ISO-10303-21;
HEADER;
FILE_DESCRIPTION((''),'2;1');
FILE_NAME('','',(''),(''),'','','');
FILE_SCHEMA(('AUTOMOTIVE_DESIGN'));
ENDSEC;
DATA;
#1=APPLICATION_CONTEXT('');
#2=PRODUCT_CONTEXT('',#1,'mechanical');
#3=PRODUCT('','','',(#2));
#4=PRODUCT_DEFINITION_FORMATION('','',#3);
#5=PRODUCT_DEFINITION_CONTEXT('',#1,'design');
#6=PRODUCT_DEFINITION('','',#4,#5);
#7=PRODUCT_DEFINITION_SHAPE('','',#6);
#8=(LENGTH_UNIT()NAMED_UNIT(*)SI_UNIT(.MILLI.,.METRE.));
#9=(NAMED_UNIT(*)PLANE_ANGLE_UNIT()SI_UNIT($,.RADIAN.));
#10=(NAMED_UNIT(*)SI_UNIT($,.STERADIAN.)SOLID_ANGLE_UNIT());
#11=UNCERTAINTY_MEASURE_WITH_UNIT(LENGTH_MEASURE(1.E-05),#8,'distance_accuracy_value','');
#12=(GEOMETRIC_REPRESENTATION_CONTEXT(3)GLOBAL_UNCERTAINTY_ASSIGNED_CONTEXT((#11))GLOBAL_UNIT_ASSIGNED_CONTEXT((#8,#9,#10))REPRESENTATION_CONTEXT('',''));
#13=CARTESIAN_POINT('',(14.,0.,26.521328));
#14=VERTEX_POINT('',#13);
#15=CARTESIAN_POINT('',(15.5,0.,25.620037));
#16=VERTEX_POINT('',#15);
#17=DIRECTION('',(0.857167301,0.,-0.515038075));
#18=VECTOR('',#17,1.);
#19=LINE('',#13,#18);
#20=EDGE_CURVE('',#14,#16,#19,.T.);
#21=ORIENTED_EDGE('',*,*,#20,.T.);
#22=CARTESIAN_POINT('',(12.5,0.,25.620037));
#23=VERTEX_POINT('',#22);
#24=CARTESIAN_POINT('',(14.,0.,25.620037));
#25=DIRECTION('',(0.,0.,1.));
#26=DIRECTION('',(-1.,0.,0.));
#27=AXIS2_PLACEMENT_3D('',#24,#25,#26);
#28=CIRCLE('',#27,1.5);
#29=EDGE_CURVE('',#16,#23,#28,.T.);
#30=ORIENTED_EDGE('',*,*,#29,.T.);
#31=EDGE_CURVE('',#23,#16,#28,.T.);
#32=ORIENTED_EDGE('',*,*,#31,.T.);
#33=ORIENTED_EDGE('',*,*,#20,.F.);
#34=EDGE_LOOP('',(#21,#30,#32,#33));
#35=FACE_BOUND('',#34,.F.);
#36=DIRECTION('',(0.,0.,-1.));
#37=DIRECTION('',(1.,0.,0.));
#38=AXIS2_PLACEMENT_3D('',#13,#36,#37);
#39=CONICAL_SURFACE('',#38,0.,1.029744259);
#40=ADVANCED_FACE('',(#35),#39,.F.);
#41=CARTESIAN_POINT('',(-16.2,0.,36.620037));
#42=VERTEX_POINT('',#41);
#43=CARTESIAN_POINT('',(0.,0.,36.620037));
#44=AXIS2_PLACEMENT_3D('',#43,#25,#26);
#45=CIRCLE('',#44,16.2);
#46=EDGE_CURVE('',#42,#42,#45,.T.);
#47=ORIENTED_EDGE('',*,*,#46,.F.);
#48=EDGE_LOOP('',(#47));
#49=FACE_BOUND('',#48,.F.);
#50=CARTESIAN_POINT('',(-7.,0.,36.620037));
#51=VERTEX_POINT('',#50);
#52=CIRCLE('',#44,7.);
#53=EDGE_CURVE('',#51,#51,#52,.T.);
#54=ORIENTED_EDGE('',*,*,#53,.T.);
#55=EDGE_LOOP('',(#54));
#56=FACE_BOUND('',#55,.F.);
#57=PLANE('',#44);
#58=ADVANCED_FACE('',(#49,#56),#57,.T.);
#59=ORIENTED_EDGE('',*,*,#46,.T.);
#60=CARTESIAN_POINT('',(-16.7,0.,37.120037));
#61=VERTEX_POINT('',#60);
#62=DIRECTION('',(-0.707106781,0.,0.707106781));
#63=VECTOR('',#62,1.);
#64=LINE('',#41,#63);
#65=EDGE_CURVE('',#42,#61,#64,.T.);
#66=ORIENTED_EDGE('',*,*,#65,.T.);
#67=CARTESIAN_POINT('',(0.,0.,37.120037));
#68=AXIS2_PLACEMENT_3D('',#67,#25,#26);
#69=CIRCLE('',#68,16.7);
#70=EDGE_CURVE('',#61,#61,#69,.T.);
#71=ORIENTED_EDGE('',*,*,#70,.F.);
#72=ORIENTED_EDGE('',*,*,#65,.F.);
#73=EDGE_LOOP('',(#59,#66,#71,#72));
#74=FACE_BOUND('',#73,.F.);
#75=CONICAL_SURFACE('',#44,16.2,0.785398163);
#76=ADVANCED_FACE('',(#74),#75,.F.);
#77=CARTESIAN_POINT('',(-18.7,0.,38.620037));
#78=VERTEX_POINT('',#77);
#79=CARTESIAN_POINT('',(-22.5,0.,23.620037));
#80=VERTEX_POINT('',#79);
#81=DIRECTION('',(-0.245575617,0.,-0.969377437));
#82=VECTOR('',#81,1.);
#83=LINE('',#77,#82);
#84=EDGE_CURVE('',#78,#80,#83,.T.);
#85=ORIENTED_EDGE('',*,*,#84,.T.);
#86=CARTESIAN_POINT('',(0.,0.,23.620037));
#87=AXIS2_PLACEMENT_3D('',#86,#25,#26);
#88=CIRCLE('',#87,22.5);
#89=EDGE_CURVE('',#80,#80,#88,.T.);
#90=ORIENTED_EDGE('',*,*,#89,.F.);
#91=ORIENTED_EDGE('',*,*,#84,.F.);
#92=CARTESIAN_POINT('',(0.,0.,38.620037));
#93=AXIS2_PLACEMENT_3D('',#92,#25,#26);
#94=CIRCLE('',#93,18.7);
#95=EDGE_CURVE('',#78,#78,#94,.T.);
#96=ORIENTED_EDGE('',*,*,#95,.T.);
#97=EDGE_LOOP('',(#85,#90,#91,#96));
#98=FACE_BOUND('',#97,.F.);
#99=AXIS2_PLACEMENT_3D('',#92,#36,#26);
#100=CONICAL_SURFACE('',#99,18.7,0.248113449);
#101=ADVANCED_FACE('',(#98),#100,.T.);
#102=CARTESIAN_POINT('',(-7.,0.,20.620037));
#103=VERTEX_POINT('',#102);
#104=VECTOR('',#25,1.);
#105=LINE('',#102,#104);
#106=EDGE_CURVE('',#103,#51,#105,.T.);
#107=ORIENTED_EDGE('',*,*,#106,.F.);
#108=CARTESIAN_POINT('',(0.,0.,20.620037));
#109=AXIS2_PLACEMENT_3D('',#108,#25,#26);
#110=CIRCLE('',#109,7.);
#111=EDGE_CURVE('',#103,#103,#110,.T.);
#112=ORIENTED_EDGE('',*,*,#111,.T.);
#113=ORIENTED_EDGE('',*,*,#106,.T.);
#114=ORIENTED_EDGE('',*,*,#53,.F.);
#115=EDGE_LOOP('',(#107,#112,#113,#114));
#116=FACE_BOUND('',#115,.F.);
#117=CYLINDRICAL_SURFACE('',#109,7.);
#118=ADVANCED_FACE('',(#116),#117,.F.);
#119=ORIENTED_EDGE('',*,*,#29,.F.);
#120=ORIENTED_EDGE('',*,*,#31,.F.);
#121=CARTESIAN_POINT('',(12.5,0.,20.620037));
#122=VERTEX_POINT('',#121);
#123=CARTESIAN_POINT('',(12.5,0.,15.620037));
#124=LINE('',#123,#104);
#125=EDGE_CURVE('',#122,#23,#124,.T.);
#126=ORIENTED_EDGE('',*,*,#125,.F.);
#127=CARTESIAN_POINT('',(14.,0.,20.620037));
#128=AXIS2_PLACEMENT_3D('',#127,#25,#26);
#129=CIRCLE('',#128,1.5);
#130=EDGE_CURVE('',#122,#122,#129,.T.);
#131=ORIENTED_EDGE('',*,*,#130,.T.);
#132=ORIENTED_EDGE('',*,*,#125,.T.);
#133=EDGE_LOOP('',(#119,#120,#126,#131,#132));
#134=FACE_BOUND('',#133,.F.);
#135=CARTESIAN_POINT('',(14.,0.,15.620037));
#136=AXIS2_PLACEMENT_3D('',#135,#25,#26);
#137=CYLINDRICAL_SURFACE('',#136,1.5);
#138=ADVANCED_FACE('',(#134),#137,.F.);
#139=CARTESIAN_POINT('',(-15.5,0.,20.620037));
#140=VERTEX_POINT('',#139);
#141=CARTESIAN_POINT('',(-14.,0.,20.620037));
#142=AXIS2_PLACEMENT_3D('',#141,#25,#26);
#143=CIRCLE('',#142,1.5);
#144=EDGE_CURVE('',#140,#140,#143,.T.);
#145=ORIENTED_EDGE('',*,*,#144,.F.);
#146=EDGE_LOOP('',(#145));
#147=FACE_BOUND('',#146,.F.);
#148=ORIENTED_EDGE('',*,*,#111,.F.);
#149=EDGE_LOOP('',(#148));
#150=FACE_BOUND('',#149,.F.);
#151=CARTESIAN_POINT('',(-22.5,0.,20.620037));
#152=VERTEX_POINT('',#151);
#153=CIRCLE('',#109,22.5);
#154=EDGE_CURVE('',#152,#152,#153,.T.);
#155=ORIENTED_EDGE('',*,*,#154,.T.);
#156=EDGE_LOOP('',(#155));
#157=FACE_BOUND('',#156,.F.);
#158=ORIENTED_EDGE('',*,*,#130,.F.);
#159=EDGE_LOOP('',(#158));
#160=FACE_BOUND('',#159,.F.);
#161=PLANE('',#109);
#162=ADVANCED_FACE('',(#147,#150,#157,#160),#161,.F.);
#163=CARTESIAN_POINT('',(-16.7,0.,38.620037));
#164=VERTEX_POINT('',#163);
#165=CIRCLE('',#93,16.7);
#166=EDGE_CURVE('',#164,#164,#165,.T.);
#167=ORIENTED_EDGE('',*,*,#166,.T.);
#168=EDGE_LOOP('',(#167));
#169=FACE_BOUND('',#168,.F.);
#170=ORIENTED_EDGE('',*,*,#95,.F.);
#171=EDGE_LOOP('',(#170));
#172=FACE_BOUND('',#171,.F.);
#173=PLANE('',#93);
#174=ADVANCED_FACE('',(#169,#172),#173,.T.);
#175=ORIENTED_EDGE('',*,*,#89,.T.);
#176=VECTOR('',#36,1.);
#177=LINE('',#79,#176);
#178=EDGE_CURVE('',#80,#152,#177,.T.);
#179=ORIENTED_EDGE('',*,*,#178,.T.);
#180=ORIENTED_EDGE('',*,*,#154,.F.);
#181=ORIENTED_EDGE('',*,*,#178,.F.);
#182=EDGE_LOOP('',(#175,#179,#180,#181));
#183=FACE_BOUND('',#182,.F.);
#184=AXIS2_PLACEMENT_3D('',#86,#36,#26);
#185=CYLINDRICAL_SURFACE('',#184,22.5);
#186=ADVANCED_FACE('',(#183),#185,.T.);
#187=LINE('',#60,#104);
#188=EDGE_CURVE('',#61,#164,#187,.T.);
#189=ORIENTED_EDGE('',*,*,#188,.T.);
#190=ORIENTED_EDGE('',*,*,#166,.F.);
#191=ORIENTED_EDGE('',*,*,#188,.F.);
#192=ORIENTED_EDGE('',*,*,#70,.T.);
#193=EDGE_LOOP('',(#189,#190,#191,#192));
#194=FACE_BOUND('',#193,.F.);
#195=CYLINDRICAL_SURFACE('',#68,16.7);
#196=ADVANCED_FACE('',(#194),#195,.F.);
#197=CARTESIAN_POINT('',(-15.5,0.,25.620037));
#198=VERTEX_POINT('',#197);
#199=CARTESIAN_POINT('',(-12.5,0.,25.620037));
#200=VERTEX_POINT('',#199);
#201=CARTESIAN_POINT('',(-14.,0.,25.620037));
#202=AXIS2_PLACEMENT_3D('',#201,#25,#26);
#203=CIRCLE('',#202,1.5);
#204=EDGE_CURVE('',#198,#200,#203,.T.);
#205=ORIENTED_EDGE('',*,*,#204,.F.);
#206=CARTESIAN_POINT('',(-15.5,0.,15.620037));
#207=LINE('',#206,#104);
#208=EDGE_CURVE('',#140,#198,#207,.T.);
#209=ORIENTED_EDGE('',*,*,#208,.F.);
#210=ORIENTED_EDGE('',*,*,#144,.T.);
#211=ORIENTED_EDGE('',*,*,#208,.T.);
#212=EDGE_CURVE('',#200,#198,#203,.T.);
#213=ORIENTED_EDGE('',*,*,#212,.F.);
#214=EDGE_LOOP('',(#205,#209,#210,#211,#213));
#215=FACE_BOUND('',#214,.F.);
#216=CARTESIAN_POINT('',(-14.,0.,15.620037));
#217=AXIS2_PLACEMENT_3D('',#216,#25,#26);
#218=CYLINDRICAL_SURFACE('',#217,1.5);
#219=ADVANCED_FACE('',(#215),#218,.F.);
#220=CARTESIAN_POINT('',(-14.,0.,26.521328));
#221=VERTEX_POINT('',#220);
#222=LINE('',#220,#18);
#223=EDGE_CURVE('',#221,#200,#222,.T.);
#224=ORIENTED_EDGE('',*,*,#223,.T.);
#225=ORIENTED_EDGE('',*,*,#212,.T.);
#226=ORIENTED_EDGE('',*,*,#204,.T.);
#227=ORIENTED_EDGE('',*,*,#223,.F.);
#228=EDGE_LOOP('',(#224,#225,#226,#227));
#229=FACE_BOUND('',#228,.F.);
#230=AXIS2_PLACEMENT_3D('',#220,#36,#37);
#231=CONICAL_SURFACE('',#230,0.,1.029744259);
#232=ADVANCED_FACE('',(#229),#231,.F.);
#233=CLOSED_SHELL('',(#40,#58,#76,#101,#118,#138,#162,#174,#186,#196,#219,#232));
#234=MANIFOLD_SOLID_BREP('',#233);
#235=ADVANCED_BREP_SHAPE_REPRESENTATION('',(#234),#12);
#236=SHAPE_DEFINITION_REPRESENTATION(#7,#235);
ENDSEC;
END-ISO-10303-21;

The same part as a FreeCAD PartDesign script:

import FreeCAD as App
import Part
import Sketcher
Q = App.Units.Quantity

doc = App.newDocument("Part")
body = doc.addObject("PartDesign::Body", "Body")

sketch1 = body.newObject("Sketcher::SketchObject", "Sketch")
sketch1.AttachmentSupport = (doc.getObject("XZ_Plane"), [""])
sketch1.MapMode = "FlatFace"
sketch1.addGeometry([
    Part.LineSegment(App.Vector(-22.5, 20.620037, 0), App.Vector(-7, 20.620037, 0)),
    Part.LineSegment(App.Vector(-7, 20.620037, 0), App.Vector(-7, 36.620037, 0)),
    Part.LineSegment(App.Vector(-7, 36.620037, 0), App.Vector(-16.2, 36.620037, 0)),
    Part.LineSegment(App.Vector(-16.2, 36.620037, 0), App.Vector(-16.7, 37.120037, 0)),
    Part.LineSegment(App.Vector(-16.7, 37.120037, 0), App.Vector(-16.7, 38.620037, 0)),
    Part.LineSegment(App.Vector(-16.7, 38.620037, 0), App.Vector(-18.7, 38.620037, 0)),
    Part.LineSegment(App.Vector(-18.7, 38.620037, 0), App.Vector(-22.5, 23.620037, 0)),
    Part.LineSegment(App.Vector(-22.5, 23.620037, 0), App.Vector(-22.5, 20.620037, 0)),
], False)
sketch1.addConstraint([
    Sketcher.Constraint("Coincident", 0, 2, 1, 1),
    Sketcher.Constraint("Coincident", 1, 2, 2, 1),
    Sketcher.Constraint("Coincident", 2, 2, 3, 1),
    Sketcher.Constraint("Coincident", 3, 2, 4, 1),
    Sketcher.Constraint("Coincident", 4, 2, 5, 1),
    Sketcher.Constraint("Coincident", 5, 2, 6, 1),
    Sketcher.Constraint("Coincident", 6, 2, 7, 1),
    Sketcher.Constraint("Coincident", 7, 2, 0, 1),
    Sketcher.Constraint("Horizontal", 0),
    Sketcher.Constraint("Vertical", 1),
    Sketcher.Constraint("Horizontal", 2),
    Sketcher.Constraint("Vertical", 4),
    Sketcher.Constraint("Horizontal", 5),
    Sketcher.Constraint("Vertical", 7),
    Sketcher.Constraint("DistanceX", 5, 2, 5, 1, 2.0),
    Sketcher.Constraint("DistanceY", 1, 1, 1, 2, 16.0),
    Sketcher.Constraint("DistanceY", 7, 2, 7, 1, 3.0),
    Sketcher.Constraint("Angle", 3, Q("135 deg")),
    Sketcher.Constraint("DistanceX", 0, 1, 0, 2, 15.5),
    Sketcher.Constraint("DistanceX", 2, 2, 2, 1, 9.2),
    Sketcher.Constraint("DistanceY", 4, 1, 4, 2, 1.5),
    Sketcher.Constraint("DistanceX", 0, 2, -1, 1, 7.0),
    Sketcher.Constraint("DistanceY", 2, 2, 4, 2, 2.0),
    Sketcher.Constraint("DistanceY", -1, 1, 0, 2, 20.620037),
])
revolution = body.newObject("PartDesign::Revolution", "Revolution")
revolution.Profile = sketch1
revolution.ReferenceAxis = (sketch1, ["V_Axis"])
revolution.Angle = 360

sketch2 = body.newObject("Sketcher::SketchObject", "Sketch001")
sketch2.AttachmentSupport = (doc.getObject("XY_Plane"), [""])
sketch2.MapMode = "FlatFace"
sketch2.AttachmentOffset = App.Placement(App.Vector(0, 0, 20.620037), App.Rotation())
sketch2.addGeometry([
    Part.Circle(App.Vector(-14, 0, 0), App.Vector(0, 0, 1), 1.5),
    Part.Circle(App.Vector(14, 0, 0), App.Vector(0, 0, 1), 1.5),
], False)
sketch2.addConstraint([
    Sketcher.Constraint("Equal", 0, 1),
    Sketcher.Constraint("Symmetric", 0, 3, 1, 3, -1, 1),
    Sketcher.Constraint("PointOnObject", 0, 3, -1),
    Sketcher.Constraint("Diameter", 0, 3.0),
    Sketcher.Constraint("DistanceX", 0, 3, -1, 1, 14.0),
])
doc.recompute()
hole = body.newObject("PartDesign::Hole", "Hole")
hole.Profile = sketch2
hole.ThreadType = "None"
hole.Diameter = 3
hole.DepthType = "Dimension"
hole.Depth = 5
hole.DrillPoint = "Angled"
hole.DrillPointAngle = 118
hole.Reversed = True

doc.recompute()
